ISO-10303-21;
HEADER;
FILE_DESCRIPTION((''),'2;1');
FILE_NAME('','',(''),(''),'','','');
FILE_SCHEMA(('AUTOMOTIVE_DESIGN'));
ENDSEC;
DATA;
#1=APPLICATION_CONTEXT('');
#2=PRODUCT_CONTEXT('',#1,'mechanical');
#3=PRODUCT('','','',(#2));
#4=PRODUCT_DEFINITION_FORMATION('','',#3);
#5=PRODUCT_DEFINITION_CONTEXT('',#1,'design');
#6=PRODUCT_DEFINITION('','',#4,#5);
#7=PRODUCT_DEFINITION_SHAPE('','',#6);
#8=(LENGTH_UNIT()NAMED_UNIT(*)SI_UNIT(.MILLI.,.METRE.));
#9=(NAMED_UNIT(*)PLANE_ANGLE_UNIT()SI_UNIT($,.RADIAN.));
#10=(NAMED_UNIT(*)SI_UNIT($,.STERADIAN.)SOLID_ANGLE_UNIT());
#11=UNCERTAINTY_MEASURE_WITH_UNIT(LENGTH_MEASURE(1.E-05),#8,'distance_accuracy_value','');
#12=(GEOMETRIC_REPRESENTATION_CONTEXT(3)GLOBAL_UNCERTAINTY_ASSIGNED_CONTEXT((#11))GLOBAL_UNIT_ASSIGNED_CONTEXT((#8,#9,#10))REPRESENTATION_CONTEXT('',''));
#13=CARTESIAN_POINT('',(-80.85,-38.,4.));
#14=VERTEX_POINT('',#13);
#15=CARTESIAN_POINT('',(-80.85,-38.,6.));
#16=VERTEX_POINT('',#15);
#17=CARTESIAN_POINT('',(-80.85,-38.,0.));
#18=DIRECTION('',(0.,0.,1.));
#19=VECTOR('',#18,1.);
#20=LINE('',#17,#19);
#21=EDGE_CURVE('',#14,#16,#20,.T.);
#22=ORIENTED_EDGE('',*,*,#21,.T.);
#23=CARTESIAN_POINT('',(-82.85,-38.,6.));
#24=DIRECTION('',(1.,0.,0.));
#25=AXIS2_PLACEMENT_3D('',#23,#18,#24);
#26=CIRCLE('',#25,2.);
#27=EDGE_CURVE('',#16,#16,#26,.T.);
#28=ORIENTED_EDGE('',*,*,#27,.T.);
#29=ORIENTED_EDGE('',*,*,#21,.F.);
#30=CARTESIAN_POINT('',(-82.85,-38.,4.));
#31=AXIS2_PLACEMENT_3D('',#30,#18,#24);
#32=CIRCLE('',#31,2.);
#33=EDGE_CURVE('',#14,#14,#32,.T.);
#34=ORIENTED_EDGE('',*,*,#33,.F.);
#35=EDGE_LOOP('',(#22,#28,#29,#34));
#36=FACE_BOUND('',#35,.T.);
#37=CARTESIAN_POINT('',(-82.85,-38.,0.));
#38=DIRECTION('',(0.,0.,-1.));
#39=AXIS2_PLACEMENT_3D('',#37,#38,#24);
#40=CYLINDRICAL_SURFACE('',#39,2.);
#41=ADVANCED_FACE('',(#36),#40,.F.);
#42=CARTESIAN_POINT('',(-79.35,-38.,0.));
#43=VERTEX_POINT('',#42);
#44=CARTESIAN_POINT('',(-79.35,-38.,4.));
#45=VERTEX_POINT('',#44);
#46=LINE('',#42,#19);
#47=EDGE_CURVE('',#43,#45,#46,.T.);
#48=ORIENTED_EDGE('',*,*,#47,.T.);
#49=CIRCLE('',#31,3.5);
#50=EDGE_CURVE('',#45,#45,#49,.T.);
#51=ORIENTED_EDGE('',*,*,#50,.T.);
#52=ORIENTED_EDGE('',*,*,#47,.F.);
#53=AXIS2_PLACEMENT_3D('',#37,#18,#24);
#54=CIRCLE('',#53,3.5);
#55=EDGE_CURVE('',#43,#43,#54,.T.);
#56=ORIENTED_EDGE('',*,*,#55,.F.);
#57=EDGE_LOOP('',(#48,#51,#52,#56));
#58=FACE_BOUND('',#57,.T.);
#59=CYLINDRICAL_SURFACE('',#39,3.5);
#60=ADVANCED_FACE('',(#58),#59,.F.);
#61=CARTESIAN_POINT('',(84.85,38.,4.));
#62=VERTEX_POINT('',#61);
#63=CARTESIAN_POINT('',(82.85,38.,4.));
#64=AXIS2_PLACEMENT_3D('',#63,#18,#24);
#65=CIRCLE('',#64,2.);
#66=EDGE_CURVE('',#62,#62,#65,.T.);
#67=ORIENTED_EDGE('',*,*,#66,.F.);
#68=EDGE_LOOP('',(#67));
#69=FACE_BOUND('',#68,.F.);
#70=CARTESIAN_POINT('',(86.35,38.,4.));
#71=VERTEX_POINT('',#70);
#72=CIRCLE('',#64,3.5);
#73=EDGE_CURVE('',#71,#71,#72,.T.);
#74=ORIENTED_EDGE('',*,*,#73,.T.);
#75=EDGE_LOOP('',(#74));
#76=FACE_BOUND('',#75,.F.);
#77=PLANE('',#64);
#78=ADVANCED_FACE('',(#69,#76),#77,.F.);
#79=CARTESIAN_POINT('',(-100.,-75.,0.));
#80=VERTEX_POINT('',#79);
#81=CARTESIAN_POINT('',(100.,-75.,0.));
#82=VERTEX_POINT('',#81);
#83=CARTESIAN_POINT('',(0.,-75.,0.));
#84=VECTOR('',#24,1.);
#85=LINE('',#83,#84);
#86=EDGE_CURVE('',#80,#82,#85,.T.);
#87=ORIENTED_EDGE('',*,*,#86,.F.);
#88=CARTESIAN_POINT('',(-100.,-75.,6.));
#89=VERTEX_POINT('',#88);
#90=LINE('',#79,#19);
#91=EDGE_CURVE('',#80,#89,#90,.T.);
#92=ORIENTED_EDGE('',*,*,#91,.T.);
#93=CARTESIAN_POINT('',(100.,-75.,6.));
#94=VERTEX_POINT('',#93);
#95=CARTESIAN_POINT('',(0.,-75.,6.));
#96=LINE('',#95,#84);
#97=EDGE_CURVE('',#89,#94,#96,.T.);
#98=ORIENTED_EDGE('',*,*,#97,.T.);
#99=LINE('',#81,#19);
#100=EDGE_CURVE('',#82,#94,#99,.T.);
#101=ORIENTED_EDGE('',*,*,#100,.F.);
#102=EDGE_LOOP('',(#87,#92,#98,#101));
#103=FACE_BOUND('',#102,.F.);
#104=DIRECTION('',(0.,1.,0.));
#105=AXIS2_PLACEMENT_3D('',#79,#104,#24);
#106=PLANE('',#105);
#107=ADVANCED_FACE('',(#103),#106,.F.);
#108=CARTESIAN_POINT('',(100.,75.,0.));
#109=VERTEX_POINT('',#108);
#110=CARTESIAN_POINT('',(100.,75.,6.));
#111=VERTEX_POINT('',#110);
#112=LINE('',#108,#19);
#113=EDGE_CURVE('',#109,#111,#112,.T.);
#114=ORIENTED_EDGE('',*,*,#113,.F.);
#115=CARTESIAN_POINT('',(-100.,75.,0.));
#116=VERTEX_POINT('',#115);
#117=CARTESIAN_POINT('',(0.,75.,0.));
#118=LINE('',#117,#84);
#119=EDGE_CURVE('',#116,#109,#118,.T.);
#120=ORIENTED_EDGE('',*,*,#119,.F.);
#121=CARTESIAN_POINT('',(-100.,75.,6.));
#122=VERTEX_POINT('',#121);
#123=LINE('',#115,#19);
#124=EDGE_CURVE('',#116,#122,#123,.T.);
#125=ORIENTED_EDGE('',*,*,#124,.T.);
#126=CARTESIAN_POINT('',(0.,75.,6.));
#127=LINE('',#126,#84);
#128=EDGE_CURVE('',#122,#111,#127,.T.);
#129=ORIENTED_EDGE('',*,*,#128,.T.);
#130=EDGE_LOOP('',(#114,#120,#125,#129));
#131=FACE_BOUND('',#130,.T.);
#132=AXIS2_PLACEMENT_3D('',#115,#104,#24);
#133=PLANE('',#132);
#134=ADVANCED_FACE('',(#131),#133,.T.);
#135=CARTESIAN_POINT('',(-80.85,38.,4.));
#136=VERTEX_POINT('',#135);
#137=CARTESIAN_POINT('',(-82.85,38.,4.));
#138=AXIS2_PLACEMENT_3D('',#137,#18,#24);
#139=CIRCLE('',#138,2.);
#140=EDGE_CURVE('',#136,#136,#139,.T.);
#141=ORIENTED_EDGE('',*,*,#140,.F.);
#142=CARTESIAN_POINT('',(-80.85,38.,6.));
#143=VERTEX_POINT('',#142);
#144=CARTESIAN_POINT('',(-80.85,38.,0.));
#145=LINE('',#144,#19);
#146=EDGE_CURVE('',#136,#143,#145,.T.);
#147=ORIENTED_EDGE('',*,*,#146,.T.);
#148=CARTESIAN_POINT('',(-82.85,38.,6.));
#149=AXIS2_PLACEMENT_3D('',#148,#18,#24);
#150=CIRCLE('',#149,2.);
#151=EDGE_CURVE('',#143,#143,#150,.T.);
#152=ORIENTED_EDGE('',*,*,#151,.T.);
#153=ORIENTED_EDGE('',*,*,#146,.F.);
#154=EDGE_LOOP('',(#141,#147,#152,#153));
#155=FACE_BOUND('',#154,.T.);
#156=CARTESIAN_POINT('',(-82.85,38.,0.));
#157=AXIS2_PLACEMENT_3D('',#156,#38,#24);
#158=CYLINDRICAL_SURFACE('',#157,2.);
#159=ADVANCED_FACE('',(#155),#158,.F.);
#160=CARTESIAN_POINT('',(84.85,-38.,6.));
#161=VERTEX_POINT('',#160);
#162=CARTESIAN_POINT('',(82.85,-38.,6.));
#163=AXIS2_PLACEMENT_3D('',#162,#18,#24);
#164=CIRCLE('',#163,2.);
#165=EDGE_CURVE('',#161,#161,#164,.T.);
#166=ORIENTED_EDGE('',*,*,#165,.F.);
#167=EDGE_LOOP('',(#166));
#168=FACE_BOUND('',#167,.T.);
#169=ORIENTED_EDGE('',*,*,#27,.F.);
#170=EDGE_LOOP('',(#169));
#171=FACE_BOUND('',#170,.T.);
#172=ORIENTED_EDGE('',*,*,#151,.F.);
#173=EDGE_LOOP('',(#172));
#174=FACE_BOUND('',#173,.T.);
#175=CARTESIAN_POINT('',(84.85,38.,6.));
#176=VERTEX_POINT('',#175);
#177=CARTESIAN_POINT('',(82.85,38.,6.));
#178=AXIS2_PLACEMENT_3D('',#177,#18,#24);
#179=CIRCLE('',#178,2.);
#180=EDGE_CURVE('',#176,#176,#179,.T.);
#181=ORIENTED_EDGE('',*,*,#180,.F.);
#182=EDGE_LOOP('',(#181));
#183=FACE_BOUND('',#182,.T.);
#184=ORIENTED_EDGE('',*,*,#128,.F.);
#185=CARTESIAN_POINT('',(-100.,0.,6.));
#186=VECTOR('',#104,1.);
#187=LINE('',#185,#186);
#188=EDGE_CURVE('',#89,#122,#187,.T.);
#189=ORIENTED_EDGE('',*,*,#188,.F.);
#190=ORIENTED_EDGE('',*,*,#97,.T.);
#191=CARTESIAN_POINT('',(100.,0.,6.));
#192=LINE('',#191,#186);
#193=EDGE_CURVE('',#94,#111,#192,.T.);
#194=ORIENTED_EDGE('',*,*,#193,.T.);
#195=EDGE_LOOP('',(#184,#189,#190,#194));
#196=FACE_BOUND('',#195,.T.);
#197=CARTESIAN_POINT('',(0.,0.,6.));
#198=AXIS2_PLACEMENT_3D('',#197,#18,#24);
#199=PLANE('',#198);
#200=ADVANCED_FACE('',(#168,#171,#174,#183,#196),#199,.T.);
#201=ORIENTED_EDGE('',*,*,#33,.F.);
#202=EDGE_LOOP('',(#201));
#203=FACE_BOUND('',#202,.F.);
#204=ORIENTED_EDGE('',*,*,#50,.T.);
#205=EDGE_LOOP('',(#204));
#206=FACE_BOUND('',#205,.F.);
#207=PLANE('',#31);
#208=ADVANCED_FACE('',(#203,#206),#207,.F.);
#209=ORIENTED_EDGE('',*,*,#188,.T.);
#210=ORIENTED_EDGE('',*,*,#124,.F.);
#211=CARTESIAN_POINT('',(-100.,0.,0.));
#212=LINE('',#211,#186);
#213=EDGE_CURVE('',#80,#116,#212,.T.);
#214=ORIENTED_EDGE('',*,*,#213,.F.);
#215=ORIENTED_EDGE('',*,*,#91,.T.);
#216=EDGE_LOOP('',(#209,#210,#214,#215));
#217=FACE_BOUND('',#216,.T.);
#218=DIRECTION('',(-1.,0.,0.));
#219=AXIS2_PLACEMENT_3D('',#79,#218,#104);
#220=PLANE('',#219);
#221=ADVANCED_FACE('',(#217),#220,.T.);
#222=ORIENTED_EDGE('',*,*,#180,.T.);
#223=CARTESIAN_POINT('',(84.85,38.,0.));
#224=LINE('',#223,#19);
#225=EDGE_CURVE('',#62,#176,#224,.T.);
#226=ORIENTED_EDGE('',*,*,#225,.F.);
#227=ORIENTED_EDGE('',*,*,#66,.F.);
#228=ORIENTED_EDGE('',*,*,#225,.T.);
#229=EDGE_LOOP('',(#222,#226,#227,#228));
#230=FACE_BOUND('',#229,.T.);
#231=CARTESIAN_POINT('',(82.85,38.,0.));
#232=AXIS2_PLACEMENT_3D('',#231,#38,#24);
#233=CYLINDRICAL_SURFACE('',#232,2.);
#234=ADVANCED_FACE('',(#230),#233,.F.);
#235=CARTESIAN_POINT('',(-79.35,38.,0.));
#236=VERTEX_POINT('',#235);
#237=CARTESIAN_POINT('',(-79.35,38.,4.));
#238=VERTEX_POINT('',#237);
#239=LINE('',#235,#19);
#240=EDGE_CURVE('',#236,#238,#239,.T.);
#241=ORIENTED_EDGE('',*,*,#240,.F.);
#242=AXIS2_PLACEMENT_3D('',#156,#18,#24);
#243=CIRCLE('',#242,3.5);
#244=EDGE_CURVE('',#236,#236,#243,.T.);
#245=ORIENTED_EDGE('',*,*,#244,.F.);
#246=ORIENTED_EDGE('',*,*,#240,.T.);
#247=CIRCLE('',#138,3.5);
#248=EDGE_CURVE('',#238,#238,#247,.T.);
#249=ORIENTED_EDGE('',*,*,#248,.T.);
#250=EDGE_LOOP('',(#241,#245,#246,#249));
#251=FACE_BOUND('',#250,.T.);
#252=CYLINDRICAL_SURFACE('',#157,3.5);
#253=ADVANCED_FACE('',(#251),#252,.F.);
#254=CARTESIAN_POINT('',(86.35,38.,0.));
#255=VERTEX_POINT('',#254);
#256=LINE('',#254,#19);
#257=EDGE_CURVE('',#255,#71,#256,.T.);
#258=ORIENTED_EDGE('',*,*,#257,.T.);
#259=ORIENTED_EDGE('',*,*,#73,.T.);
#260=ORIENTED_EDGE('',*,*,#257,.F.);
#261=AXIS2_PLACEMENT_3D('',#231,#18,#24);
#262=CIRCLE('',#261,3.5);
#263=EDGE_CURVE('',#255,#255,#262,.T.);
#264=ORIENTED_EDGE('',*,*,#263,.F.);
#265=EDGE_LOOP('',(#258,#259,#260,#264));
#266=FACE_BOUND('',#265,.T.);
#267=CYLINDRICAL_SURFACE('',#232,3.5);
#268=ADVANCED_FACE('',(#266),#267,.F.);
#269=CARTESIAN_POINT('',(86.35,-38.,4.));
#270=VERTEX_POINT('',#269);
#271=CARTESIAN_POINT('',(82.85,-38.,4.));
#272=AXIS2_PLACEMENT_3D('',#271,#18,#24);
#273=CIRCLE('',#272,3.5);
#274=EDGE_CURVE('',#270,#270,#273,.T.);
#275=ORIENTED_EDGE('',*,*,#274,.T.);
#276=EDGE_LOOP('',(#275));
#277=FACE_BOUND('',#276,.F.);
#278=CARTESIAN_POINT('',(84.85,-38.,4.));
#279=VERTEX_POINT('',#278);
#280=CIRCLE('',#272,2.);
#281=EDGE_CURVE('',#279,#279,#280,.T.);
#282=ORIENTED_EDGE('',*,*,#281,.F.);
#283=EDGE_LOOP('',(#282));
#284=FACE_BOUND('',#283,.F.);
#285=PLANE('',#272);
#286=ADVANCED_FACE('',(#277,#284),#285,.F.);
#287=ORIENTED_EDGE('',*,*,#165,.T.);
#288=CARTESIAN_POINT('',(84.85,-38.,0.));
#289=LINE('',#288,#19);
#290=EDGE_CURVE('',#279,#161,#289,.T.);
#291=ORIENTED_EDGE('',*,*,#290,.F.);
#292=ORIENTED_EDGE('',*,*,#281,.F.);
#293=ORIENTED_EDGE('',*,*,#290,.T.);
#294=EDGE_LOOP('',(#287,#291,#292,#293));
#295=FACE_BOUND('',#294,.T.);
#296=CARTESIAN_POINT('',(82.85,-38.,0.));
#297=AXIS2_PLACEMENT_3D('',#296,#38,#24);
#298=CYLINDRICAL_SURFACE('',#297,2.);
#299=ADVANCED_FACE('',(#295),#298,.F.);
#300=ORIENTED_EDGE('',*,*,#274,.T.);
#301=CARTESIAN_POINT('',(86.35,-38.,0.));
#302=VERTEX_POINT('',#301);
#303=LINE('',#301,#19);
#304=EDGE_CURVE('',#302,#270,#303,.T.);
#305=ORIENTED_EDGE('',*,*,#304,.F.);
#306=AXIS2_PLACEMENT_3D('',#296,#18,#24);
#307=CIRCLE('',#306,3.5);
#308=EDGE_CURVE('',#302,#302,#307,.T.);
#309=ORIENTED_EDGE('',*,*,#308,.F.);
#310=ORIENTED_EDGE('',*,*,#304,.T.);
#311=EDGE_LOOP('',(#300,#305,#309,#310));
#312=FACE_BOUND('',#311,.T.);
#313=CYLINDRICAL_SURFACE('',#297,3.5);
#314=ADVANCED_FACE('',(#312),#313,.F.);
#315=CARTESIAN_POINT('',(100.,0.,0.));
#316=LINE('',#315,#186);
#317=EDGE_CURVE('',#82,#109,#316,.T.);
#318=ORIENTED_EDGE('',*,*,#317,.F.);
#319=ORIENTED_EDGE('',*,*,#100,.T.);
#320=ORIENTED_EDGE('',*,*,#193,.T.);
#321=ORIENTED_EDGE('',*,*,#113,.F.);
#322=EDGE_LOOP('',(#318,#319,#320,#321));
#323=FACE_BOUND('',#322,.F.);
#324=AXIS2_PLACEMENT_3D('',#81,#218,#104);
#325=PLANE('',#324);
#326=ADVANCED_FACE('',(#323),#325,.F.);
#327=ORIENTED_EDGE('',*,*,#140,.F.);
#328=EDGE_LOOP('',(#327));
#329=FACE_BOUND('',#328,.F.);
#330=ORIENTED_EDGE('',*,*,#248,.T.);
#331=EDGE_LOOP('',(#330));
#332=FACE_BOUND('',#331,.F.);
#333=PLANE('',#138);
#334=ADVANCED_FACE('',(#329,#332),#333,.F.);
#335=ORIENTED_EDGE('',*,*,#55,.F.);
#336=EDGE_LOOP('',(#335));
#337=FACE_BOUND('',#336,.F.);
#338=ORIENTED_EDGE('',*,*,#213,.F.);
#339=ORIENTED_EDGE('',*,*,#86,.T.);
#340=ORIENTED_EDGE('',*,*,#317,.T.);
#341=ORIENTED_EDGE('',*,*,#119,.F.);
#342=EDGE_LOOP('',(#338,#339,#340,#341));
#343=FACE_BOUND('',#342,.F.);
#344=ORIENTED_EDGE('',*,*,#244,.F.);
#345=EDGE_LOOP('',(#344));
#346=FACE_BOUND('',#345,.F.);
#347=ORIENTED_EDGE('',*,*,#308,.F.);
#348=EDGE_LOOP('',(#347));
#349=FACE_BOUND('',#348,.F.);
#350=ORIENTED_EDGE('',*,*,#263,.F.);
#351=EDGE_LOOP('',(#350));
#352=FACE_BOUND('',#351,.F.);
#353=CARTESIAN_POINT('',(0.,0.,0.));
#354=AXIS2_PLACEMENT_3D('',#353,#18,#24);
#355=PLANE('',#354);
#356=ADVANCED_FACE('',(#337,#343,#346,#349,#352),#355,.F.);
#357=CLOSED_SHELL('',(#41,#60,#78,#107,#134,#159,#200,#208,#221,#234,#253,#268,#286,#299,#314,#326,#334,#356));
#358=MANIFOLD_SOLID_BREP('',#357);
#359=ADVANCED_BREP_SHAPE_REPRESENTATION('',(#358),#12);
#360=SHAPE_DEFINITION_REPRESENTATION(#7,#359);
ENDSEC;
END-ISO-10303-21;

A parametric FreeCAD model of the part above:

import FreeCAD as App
import Part
import Sketcher
from FreeCAD import Vector


def add_polygon(sketch, points):
    """Adds a closed chain of lines whose ends are joined by coincident constraints."""
    first, n = sketch.GeometryCount, len(points)
    for a, b in zip(points, points[1:] + points[:1]):
        sketch.addGeometry(Part.LineSegment(App.Vector(*a, 0), App.Vector(*b, 0)), False)
    for i in range(n):
        sketch.addConstraint(Sketcher.Constraint("Coincident", first + i, 2, first + (i + 1) % n, 1))

doc = App.newDocument("Part")
body = doc.addObject("PartDesign::Body", "Body")

sketch1 = body.newObject("Sketcher::SketchObject", "Sketch")
sketch1.AttachmentSupport = (doc.getObject("XY_Plane"), [""])
sketch1.MapMode = "FlatFace"
add_polygon(sketch1, [(-100, 75), (-100, -75), (100, -75), (100, 75)])
sketch1.addGeometry(Part.Circle(Vector(-82.8, -38, 0), Vector(0, 0, 1), 2), False)
sketch1.addGeometry(Part.Circle(Vector(82.8, -38, 0), Vector(0, 0, 1), 2), False)
sketch1.addGeometry(Part.Circle(Vector(-82.8, 38, 0), Vector(0, 0, 1), 2), False)
sketch1.addGeometry(Part.Circle(Vector(82.8, 38, 0), Vector(0, 0, 1), 2), False)
sketch1.addConstraint([
    Sketcher.Constraint("Vertical", 0),
    Sketcher.Constraint("Horizontal", 1),
    Sketcher.Constraint("Vertical", 2),
    Sketcher.Constraint("Horizontal", 3),
    Sketcher.Constraint("Equal", 4, 5),
    Sketcher.Constraint("Equal", 5, 6),
    Sketcher.Constraint("Equal", 6, 7),
    Sketcher.Constraint("Symmetric", 5, 3, 6, 3, -1, 1),
    Sketcher.Constraint("Symmetric", 4, 3, 7, 3, -1, 1),
    Sketcher.Constraint("Symmetric", 0, 2, 2, 2, -1, 1),
    Sketcher.Constraint("Symmetric", 4, 3, 5, 3, -2),
    Sketcher.Constraint("Diameter", 4, 4.0),
    Sketcher.Constraint("DistanceX", 1, 1, 1, 2, 200.0),
    Sketcher.Constraint("DistanceY", 0, 2, 0, 1, 150.0),
    Sketcher.Constraint("DistanceY", 4, 3, -1, 1, 38.0),
    Sketcher.Constraint("DistanceX", 4, 3, 5, 3, 165.7),
])
pad1 = body.newObject("PartDesign::Pad", "Pad")
pad1.Profile = sketch1
pad1.Length = 6

sketch2 = body.newObject("Sketcher::SketchObject", "Sketch001")
sketch2.AttachmentSupport = (doc.getObject("XY_Plane"), [""])
sketch2.MapMode = "FlatFace"
sketch2.addGeometry([
    Part.Circle(Vector(-82.8, 38, 0), Vector(0, 0, 1), 3.5),
    Part.Circle(Vector(-82.8, 38, 0), Vector(0, 0, 1), 2),
    Part.Circle(Vector(82.8, 38, 0), Vector(0, 0, 1), 3.5),
    Part.Circle(Vector(82.8, 38, 0), Vector(0, 0, 1), 2),
    Part.Circle(Vector(82.8, -38, 0), Vector(0, 0, 1), 3.5),
    Part.Circle(Vector(82.8, -38, 0), Vector(0, 0, 1), 2),
    Part.Circle(Vector(-82.8, -38, 0), Vector(0, 0, 1), 3.5),
    Part.Circle(Vector(-82.8, -38, 0), Vector(0, 0, 1), 2),
], False)
sketch2.addConstraint([
    Sketcher.Constraint("Coincident", 1, 3, 0, 3),
    Sketcher.Constraint("Coincident", 3, 3, 2, 3),
    Sketcher.Constraint("Coincident", 5, 3, 4, 3),
    Sketcher.Constraint("Coincident", 7, 3, 6, 3),
    Sketcher.Constraint("Equal", 0, 2),
    Sketcher.Constraint("Equal", 1, 3),
    Sketcher.Constraint("Equal", 2, 4),
    Sketcher.Constraint("Equal", 3, 5),
    Sketcher.Constraint("Equal", 4, 6),
    Sketcher.Constraint("Equal", 5, 7),
    Sketcher.Constraint("Symmetric", 0, 3, 4, 3, -1, 1),
    Sketcher.Constraint("Symmetric", 2, 3, 6, 3, -1, 1),
    Sketcher.Constraint("Symmetric", 0, 3, 2, 3, -2),
    Sketcher.Constraint("Diameter", 0, 7.0),
    Sketcher.Constraint("Diameter", 1, 4.0),
    Sketcher.Constraint("DistanceY", -1, 1, 0, 3, 38.0),
    Sketcher.Constraint("DistanceX", 0, 3, 2, 3, 165.7),
])
pocket1 = body.newObject("PartDesign::Pocket", "Pocket")
pocket1.Profile = sketch2
pocket1.Length = 4
pocket1.Reversed = True

doc.recompute()
